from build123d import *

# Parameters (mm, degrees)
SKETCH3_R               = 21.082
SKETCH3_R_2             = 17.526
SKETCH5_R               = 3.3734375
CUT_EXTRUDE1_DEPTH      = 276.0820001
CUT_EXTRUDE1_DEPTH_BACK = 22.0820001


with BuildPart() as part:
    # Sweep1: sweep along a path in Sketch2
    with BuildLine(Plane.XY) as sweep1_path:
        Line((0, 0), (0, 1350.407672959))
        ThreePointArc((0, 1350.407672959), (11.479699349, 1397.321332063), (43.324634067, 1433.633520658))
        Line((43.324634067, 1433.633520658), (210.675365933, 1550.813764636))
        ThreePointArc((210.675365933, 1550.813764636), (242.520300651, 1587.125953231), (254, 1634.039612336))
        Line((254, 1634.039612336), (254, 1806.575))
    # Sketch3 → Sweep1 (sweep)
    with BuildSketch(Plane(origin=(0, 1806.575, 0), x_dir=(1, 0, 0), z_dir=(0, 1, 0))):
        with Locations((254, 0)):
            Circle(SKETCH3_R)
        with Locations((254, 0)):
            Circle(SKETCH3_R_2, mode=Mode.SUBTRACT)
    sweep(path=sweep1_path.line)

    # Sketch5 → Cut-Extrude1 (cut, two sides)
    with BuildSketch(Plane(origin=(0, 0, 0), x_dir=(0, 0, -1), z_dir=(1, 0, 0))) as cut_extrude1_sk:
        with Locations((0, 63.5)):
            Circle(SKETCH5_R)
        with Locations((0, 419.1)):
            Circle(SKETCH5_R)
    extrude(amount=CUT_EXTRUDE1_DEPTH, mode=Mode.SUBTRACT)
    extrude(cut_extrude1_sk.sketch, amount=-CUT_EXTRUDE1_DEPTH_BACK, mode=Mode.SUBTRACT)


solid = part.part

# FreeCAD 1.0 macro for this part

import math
import FreeCAD as App
import Part
import Sketcher
from FreeCAD import Vector
Q = App.Units.Quantity

doc = App.newDocument("Part")
body = doc.addObject("PartDesign::Body", "Body")

sketch1 = doc.addObject("Sketcher::SketchObject", "Sketch")
body.addObject(sketch1)
sketch1.AttachmentSupport = (doc.XZ_Plane, [""])
sketch1.MapMode = "FlatFace"
sketch1.AttachmentOffset = App.Placement(Vector(0, 0, -71.125 * 25.4), App.Rotation())
sketch1.addGeometry(Part.Circle(Vector(254, 0, 0), Vector(0, 0, 1), 21), False)
sketch1.addGeometry(Part.Circle(Vector(254, 0, 0), Vector(0, 0, 1), 18), False)
sketch1.addConstraint(Sketcher.Constraint("Coincident", 1, 3, 0, 3))
sketch1.addConstraint(Sketcher.Constraint("PointOnObject", 0, 3, -1))
sketch1.addConstraint(Sketcher.Constraint("Diameter", 0, Q("1.66 in")))
sketch1.addConstraint(Sketcher.Constraint("Diameter", 1, Q("1.38 in")))
sketch1.addConstraint(Sketcher.Constraint("DistanceX", -1, 1, 0, 3, Q("10 in")))

sketch2 = doc.addObject("Sketcher::SketchObject", "Sketch001")
body.addObject(sketch2)
sketch2.AttachmentSupport = (doc.XY_Plane, [""])
sketch2.MapMode = "FlatFace"
sketch2.addGeometry(Part.LineSegment(Vector(0, 0, 0), Vector(0, 1350, 0)), False)
sketch2.addGeometry(Part.ArcOfCircle(Part.Circle(Vector(102, 1350, 0), Vector(0, 0, 1), 102), math.radians(125), math.radians(180)), False)
sketch2.addGeometry(Part.LineSegment(Vector(43, 1434, 0), Vector(211, 1551, 0)), False)
sketch2.addGeometry(Part.ArcOfCircle(Part.Circle(Vector(152, 1634, 0), Vector(0, 0, 1), 102), math.radians(-55), math.radians(0)), False)
sketch2.addGeometry(Part.LineSegment(Vector(254, 1634, 0), Vector(254, 1807, 0)), False)
sketch2.addConstraint(Sketcher.Constraint("Tangent", 0, 2, 1, 2))
sketch2.addConstraint(Sketcher.Constraint("Tangent", 1, 1, 2, 1))
sketch2.addConstraint(Sketcher.Constraint("Tangent", 2, 2, 3, 1))
sketch2.addConstraint(Sketcher.Constraint("Tangent", 3, 2, 4, 1))
sketch2.addConstraint(Sketcher.Constraint("Vertical", 0))
sketch2.addConstraint(Sketcher.Constraint("Vertical", 4))
sketch2.addConstraint(Sketcher.Constraint("Coincident", 0, 1, -1, 1))
sketch2.addConstraint(Sketcher.Constraint("Equal", 1, 3))
sketch2.addConstraint(Sketcher.Constraint("Radius", 1, Q("4 in")))
sketch2.addConstraint(Sketcher.Constraint("DistanceX", -1, 1, 3, 3, Q("6 in")))
sketch2.addConstraint(Sketcher.Constraint("Angle", 2, Q("35 deg")))
sketch2.addConstraint(Sketcher.Constraint("DistanceY", -1, 1, 4, 2, Q("71.125 in")))
sketch2.addConstraint(Sketcher.Constraint("DistanceY", 0, 1, 0, 2, 1350.407673))
doc.recompute()

additivepipe = doc.addObject("PartDesign::AdditivePipe", "AdditivePipe")
body.addObject(additivepipe)
additivepipe.Profile = sketch1
additivepipe.Spine = (sketch2, ["Edge1", "Edge2", "Edge3", "Edge4", "Edge5"])

sketch3 = doc.addObject("Sketcher::SketchObject", "Sketch002")
body.addObject(sketch3)
sketch3.AttachmentSupport = (doc.YZ_Plane, [""])
sketch3.MapMode = "FlatFace"
sketch3.addGeometry(Part.Circle(Vector(63.5, 0, 0), Vector(0, 0, 1), 3.4), False)
sketch3.addGeometry(Part.Circle(Vector(419.1, 0, 0), Vector(0, 0, 1), 3.4), False)
sketch3.addConstraint(Sketcher.Constraint("Equal", 0, 1))
sketch3.addConstraint(Sketcher.Constraint("PointOnObject", 0, 3, -1))
sketch3.addConstraint(Sketcher.Constraint("PointOnObject", 1, 3, -1))
sketch3.addConstraint(Sketcher.Constraint("Diameter", 0, Q("0.265625 in")))
sketch3.addConstraint(Sketcher.Constraint("DistanceX", 0, 3, 1, 3, Q("14 in")))
sketch3.addConstraint(Sketcher.Constraint("DistanceX", -1, 1, 0, 3, Q("2.5 in")))
pocket1 = doc.addObject("PartDesign::Pocket", "Pocket")
body.addObject(pocket1)
pocket1.Profile = sketch3
pocket1.Type = "ThroughAll"
pocket1.Midplane = True

doc.recompute()
